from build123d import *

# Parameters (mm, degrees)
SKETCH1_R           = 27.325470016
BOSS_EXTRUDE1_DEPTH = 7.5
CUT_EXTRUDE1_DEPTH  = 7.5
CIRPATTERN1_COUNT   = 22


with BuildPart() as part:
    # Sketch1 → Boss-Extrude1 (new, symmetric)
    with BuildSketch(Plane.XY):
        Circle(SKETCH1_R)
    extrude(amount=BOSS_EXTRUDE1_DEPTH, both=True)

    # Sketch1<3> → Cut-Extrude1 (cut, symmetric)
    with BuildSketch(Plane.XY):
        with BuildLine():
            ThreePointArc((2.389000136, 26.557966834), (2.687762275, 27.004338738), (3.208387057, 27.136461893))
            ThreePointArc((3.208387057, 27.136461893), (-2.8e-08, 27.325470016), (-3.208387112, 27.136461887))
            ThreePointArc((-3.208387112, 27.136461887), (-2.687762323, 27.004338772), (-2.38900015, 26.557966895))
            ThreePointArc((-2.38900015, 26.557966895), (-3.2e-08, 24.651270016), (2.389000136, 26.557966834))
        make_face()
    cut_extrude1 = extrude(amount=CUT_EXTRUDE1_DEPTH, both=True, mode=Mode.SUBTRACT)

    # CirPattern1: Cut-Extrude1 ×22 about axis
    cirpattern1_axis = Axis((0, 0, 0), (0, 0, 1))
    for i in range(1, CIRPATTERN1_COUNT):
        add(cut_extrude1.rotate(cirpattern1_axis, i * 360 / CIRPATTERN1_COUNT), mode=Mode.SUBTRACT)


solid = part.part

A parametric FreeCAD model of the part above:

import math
import FreeCAD as App
import Part
import Sketcher

V = App.Vector

doc = App.newDocument("Part")
body = doc.addObject("PartDesign::Body", "Body")

# Sketch on XY plane
sketch1 = doc.addObject("Sketcher::SketchObject", "Sketch")
body.addObject(sketch1)
sketch1.AttachmentSupport = (doc.XY_Plane, [""])
sketch1.MapMode = "FlatFace"
sketch1.addGeometry(Part.Circle(V(0, 0, 0), V(0, 0, 1), 27), False)
sketch1.addConstraint([
    Sketcher.Constraint("Coincident", 0, 3, -1, 1),
    Sketcher.Constraint("Diameter", 0, 54.65094),
])
pad1 = doc.addObject("PartDesign::Pad", "Pad")
body.addObject(pad1)
pad1.Profile = sketch1
pad1.Length = 15
pad1.Midplane = True

# Sketch on XY plane
sketch2 = doc.addObject("Sketcher::SketchObject", "Sketch001")
body.addObject(sketch2)
sketch2.AttachmentSupport = (doc.XY_Plane, [""])
sketch2.MapMode = "FlatFace"
sketch2.addGeometry([
    Part.ArcOfCircle(Part.Circle(V(3.1, 26.4, 0), V(0, 0, 1), 0.8), math.radians(83), math.radians(167)),
    Part.ArcOfCircle(Part.Circle(V(0, 0, 0), V(0, 0, 1), 27.3), math.radians(83.26), math.radians(96.74)),
    Part.ArcOfCircle(Part.Circle(V(-3.1, 26.4, 0), V(0, 0, 1), 0.8), math.radians(13), math.radians(97)),
    Part.ArcOfCircle(Part.Circle(V(0, 27.1, 0), V(0, 0, 1), 2.4), math.radians(-167), math.radians(-13)),
], False)
sketch2.addConstraint([
    Sketcher.Constraint("Tangent", 0, 1, 1, 1),
    Sketcher.Constraint("Tangent", 1, 2, 2, 2),
    Sketcher.Constraint("Tangent", 2, 1, 3, 1),
    Sketcher.Constraint("Tangent", 3, 2, 0, 2),
    Sketcher.Constraint("Coincident", 1, 3, -1, 1),
    Sketcher.Constraint("Equal", 0, 2),
    Sketcher.Constraint("PointOnObject", 3, 3, -2),
    Sketcher.Constraint("Radius", 0, 0.75),
    Sketcher.Constraint("Radius", 3, 2.45),
    Sketcher.Constraint("Radius", 1, 27.32547),
    Sketcher.Constraint("DistanceX", 2, 1, -1, 1, 2.389),
])
pocket1 = doc.addObject("PartDesign::Pocket", "Pocket")
body.addObject(pocket1)
pocket1.Profile = sketch2
pocket1.Length = 15
pocket1.Midplane = True
doc.recompute()

polarpattern = doc.addObject("PartDesign::PolarPattern", "PolarPattern")
body.addObject(polarpattern)
polarpattern.Originals = [pocket1]
polarpattern.Axis = (doc.Z_Axis, [""])
polarpattern.Angle = 360
polarpattern.Occurrences = 22
body.Tip = polarpattern

doc.recompute()
